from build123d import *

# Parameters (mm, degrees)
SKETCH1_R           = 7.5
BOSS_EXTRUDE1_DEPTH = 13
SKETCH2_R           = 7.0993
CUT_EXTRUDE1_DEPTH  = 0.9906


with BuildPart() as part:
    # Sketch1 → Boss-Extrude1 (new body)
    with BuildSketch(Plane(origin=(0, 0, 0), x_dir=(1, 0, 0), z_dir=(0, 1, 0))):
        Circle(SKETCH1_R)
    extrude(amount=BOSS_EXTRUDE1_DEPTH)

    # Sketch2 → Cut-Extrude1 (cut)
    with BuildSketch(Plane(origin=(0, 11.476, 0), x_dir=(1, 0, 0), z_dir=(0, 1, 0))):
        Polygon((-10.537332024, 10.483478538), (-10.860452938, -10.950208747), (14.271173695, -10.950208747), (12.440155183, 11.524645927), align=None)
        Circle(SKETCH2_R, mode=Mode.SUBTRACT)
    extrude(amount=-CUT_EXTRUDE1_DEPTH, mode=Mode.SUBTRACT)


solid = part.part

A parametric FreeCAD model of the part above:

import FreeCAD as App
import Part
import Sketcher

doc = App.newDocument("Part")
body = doc.addObject("PartDesign::Body", "Body")

sketch1 = body.newObject("Sketcher::SketchObject", "Sketch")
sketch1.AttachmentSupport = (doc.getObject("XZ_Plane"), [""])
sketch1.MapMode = "FlatFace"
sketch1.addGeometry(Part.Circle(App.Vector(0, 0, 0), App.Vector(0, 0, 1), 8), False)
sketch1.addConstraint([
    Sketcher.Constraint("Coincident", 0, 3, -1, 1),
    Sketcher.Constraint("Diameter", 0, 15.0),
])
pad1 = body.newObject("PartDesign::Pad", "Pad")
pad1.Profile = sketch1
pad1.Length = 13
pad1.Reversed = True

sketch2 = body.newObject("Sketcher::SketchObject", "Sketch001")
sketch2.AttachmentSupport = (doc.getObject("XZ_Plane"), [""])
sketch2.MapMode = "FlatFace"
sketch2.AttachmentOffset = App.Placement(App.Vector(0, 0, -11.476), App.Rotation())
sketch2.addGeometry([
    Part.LineSegment(App.Vector(-11, -10, 0), App.Vector(-11, 11, 0)),
    Part.LineSegment(App.Vector(-11, 11, 0), App.Vector(14, 11, 0)),
    Part.LineSegment(App.Vector(14, 11, 0), App.Vector(12, -12, 0)),
    Part.LineSegment(App.Vector(12, -12, 0), App.Vector(-11, -10, 0)),
    Part.Circle(App.Vector(0, 0, 0), App.Vector(0, 0, 1), 7),
], False)
sketch2.addConstraint([
    Sketcher.Constraint("Coincident", 0, 2, 1, 1),
    Sketcher.Constraint("Coincident", 1, 2, 2, 1),
    Sketcher.Constraint("Coincident", 2, 2, 3, 1),
    Sketcher.Constraint("Coincident", 3, 2, 0, 1),
    Sketcher.Constraint("Horizontal", 1),
    Sketcher.Constraint("Coincident", 4, 3, -1, 1),
    Sketcher.Constraint("Diameter", 4, 14.1986),
    Sketcher.Constraint("DistanceX", 1, 1, 1, 2, 25.131627),
    Sketcher.Constraint("DistanceY", -1, 1, 0, 2, 10.950209),
    Sketcher.Constraint("DistanceY", 3, 2, -1, 1, 10.483479),
    Sketcher.Constraint("DistanceX", 2, 2, 1, 2, 1.831019),
    Sketcher.Constraint("DistanceX", 0, 2, 3, 2, 0.323121),
    Sketcher.Constraint("Distance", 2, 22.549318),
    Sketcher.Constraint("DistanceX", 0, 2, -1, 1, 10.860453),
])
pocket1 = body.newObject("PartDesign::Pocket", "Pocket")
pocket1.Profile = sketch2
pocket1.Length = 0.9906
pocket1.Reversed = True

doc.recompute()
